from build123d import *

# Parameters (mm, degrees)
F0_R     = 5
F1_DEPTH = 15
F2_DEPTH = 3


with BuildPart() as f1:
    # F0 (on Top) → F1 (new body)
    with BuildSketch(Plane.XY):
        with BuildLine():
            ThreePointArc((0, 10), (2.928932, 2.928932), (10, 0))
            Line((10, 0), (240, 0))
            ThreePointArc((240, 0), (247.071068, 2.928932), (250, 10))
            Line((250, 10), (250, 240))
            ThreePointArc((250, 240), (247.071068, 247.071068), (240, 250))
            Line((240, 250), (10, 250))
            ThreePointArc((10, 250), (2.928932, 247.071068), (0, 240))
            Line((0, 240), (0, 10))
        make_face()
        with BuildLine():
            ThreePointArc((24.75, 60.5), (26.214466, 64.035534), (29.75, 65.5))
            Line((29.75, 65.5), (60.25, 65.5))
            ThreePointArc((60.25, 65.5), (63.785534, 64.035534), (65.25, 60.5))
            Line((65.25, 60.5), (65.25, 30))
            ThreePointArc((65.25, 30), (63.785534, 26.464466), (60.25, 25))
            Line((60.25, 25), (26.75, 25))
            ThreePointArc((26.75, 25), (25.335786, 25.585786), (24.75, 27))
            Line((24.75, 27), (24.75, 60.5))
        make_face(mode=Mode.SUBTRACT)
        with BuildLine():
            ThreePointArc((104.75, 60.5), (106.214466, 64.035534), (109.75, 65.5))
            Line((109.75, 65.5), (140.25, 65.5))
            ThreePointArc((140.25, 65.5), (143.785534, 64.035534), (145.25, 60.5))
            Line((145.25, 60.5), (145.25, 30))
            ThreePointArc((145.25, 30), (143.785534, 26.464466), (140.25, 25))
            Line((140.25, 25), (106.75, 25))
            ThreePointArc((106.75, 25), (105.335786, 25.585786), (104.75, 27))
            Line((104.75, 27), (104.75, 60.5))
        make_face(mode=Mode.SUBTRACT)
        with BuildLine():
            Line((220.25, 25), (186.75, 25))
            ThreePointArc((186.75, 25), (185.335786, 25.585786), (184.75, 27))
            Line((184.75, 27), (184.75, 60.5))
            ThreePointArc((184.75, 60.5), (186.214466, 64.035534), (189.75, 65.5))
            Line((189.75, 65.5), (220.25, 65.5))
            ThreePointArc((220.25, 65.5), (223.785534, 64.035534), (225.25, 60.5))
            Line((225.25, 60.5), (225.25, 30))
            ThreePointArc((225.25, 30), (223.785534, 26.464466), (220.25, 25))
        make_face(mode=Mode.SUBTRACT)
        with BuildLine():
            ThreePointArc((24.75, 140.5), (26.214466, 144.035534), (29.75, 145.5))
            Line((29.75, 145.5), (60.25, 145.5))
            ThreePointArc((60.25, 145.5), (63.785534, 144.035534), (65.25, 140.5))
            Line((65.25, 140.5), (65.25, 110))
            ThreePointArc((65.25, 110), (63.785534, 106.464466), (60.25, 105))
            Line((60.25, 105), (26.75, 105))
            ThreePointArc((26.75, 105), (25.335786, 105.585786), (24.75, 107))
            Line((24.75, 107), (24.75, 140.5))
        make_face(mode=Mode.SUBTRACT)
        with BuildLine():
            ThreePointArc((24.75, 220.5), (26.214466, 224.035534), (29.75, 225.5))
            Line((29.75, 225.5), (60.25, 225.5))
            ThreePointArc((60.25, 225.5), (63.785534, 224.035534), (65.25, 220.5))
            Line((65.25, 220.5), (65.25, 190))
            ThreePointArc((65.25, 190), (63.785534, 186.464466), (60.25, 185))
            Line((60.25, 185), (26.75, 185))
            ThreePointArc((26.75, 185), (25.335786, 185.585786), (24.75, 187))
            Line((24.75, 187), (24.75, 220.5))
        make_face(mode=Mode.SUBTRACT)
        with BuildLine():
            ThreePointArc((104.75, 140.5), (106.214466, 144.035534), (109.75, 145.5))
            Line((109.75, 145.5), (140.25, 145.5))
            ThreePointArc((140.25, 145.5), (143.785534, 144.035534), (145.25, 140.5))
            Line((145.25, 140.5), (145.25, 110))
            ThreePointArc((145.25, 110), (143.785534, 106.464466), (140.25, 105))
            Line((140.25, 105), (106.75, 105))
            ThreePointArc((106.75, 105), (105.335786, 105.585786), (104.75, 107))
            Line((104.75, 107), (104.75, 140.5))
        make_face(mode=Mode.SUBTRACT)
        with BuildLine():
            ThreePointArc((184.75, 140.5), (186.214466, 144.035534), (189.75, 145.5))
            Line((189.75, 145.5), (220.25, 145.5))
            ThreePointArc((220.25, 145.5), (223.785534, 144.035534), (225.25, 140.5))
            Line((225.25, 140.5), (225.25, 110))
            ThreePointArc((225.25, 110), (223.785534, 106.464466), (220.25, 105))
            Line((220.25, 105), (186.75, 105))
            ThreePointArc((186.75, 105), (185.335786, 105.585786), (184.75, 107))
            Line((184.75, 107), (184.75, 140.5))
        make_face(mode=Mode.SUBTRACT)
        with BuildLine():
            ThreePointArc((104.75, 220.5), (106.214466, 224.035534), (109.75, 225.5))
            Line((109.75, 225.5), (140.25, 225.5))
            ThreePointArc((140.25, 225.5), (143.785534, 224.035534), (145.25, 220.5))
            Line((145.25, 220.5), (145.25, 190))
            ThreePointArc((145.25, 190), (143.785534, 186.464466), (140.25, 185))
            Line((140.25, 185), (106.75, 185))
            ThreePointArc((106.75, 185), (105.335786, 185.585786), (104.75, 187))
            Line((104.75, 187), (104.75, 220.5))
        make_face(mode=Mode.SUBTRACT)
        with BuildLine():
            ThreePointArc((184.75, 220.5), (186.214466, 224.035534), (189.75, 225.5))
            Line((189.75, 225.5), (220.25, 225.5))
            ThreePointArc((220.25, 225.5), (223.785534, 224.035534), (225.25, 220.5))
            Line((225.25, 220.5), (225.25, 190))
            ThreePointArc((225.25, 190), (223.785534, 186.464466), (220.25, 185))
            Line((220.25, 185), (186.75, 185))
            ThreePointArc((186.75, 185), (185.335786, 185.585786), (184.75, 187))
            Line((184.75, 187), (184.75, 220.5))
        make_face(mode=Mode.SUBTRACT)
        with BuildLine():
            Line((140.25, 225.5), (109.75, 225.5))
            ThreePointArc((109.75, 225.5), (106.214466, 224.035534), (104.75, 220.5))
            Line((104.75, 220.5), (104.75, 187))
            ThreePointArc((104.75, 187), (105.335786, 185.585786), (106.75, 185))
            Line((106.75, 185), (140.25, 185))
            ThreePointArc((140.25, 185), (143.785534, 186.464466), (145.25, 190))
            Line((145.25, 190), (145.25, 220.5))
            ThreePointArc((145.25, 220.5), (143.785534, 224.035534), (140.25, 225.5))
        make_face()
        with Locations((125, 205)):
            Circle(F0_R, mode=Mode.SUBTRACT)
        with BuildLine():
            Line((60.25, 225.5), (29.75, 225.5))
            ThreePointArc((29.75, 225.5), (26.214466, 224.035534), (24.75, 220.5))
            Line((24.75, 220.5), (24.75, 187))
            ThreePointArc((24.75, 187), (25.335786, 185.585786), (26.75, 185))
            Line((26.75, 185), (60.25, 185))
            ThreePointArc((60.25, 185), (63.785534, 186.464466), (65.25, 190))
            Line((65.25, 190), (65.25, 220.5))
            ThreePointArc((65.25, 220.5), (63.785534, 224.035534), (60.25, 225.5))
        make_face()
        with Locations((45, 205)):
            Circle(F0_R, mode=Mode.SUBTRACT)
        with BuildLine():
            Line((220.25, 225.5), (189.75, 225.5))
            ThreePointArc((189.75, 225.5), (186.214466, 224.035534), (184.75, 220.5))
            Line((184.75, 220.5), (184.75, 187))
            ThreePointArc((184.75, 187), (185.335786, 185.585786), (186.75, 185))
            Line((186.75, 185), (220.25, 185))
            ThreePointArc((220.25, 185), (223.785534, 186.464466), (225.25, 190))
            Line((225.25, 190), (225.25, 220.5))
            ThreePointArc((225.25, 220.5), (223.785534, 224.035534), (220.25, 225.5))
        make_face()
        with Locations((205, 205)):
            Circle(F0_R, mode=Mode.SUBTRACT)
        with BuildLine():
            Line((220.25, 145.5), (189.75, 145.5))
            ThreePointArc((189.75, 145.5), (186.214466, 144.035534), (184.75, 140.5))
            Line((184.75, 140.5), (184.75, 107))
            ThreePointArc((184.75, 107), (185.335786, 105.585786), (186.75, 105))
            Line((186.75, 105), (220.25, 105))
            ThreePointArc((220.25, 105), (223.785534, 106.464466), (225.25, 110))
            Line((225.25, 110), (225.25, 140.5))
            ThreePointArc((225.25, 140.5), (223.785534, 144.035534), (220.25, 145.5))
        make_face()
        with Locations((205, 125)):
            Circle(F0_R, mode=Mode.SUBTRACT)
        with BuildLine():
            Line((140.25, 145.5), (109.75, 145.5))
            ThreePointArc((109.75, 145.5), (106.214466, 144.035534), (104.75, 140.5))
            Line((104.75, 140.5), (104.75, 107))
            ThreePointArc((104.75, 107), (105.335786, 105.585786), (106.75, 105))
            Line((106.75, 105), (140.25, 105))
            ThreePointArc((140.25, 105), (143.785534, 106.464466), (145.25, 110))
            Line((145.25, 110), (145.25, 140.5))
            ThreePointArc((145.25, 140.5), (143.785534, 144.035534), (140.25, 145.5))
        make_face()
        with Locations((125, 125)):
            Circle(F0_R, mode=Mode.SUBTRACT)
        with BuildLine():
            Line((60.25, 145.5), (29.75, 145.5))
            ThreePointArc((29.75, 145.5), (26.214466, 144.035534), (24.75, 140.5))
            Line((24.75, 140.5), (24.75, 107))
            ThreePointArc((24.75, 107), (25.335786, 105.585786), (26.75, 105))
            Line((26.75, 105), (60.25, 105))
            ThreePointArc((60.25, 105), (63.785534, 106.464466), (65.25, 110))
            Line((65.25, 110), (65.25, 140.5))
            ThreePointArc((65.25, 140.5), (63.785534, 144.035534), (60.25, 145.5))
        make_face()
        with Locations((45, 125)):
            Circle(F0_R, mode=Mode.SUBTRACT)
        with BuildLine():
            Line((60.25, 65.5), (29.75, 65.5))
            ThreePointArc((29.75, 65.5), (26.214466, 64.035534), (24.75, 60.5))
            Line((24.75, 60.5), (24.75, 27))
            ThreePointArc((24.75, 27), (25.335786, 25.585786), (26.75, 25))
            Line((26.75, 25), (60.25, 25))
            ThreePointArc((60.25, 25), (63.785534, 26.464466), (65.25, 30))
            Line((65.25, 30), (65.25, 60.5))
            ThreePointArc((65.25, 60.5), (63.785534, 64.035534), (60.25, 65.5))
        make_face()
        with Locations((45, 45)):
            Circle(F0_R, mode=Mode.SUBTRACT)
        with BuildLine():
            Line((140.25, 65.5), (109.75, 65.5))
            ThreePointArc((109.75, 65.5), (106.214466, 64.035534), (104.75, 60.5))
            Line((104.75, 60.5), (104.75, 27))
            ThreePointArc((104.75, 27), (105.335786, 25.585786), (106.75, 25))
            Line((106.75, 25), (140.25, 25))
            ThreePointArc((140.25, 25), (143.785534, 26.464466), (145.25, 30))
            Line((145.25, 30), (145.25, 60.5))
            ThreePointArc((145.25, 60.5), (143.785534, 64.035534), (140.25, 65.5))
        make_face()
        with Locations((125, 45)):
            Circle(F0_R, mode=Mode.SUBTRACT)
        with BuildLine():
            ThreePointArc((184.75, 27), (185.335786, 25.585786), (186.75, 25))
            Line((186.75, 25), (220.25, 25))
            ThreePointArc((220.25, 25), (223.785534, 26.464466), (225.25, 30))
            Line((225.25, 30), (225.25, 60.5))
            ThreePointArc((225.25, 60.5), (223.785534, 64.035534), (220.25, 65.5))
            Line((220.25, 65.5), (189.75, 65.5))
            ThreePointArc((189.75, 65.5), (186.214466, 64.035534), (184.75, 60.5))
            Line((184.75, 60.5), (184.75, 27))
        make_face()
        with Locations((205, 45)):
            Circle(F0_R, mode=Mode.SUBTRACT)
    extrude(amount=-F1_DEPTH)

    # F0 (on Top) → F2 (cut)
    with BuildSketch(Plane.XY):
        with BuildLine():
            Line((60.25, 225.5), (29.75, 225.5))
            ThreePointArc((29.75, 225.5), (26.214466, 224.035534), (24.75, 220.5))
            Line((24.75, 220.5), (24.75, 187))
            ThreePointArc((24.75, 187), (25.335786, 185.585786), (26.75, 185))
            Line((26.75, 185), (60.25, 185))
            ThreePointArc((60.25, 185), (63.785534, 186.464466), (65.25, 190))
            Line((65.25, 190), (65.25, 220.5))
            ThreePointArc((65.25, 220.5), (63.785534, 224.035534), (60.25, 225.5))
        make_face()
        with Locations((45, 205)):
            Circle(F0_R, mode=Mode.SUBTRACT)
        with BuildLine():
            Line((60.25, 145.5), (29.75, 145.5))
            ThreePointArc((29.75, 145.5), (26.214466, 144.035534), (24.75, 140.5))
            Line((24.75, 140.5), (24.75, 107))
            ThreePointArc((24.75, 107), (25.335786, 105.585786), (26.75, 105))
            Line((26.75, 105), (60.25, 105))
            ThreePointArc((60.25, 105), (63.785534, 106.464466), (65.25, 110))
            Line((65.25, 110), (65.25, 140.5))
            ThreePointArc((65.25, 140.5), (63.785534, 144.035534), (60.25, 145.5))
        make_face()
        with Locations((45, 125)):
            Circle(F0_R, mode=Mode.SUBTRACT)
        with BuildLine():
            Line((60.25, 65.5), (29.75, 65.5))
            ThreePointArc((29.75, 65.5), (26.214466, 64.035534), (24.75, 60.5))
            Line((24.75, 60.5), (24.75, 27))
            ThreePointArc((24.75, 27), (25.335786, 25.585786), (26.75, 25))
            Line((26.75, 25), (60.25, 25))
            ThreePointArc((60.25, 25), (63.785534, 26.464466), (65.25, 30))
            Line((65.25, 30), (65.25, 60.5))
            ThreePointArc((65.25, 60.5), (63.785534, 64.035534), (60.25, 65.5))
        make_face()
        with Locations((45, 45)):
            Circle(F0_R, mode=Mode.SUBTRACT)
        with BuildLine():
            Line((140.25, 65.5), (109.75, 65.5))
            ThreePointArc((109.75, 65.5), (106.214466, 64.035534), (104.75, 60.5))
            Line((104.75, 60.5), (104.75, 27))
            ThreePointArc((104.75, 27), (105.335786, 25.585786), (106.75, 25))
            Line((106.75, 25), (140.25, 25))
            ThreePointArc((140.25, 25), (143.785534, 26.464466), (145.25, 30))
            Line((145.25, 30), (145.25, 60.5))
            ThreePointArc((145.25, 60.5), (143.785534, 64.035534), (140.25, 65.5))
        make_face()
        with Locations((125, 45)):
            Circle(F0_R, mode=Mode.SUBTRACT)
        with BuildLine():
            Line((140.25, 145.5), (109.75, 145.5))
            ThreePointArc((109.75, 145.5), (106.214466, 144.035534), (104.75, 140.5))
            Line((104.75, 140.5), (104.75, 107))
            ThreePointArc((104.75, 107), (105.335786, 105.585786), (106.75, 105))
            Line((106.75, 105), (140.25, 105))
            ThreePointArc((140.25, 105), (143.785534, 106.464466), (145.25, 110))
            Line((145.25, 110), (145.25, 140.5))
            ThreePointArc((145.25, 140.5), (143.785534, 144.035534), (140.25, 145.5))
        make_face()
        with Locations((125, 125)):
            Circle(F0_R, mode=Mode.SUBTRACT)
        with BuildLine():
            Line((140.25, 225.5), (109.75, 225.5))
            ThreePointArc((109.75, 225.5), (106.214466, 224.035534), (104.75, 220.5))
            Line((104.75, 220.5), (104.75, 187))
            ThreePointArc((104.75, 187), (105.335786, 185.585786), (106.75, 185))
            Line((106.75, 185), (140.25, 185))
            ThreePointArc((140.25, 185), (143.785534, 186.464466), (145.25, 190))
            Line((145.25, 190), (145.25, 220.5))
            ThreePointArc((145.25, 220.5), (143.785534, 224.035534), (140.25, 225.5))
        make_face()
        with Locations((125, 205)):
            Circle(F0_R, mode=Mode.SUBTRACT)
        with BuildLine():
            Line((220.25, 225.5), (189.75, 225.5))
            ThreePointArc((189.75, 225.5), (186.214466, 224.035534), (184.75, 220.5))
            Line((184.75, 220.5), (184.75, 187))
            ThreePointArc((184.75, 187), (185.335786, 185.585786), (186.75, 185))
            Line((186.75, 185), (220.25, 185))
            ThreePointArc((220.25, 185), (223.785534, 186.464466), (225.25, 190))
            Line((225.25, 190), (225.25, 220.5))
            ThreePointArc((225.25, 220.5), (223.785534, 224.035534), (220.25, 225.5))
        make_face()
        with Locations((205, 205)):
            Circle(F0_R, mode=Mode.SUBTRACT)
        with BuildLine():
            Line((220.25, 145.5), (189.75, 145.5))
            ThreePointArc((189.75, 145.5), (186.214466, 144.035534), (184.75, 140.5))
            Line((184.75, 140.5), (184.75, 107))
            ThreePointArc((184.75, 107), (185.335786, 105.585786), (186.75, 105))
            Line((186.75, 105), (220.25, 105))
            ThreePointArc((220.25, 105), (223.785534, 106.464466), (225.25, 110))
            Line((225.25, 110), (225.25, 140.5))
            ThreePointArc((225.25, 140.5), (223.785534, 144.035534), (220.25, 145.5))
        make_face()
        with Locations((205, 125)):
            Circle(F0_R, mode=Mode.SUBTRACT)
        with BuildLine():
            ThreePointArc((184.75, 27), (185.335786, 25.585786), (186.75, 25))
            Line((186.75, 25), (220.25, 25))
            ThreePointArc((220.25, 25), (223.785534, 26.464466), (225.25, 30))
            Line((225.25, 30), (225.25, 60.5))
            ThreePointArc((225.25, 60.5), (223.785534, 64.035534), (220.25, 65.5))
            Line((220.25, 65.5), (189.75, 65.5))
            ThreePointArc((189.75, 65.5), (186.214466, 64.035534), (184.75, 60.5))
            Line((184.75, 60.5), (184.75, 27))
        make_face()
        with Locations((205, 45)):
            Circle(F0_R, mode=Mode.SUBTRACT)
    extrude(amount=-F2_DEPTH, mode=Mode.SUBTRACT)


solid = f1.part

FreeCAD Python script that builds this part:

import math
import FreeCAD as App
import Part
import Sketcher
Q = App.Units.Quantity

doc = App.newDocument("Part")
body = doc.addObject("PartDesign::Body", "Body")

sketch1 = doc.addObject("Sketcher::SketchObject", "Sketch")
body.addObject(sketch1)
sketch1.AttachmentSupport = (doc.XY_Plane, [""])
sketch1.MapMode = "FlatFace"
sketch1.addGeometry([
    Part.ArcOfCircle(Part.Circle(App.Vector(10, 10, 0), App.Vector(0, 0, 1), 10), math.radians(180), math.radians(270)),
    Part.LineSegment(App.Vector(10, 0, 0), App.Vector(240, 0, 0)),
    Part.ArcOfCircle(Part.Circle(App.Vector(240, 10, 0), App.Vector(0, 0, 1), 10), math.radians(-90), math.radians(0)),
    Part.LineSegment(App.Vector(250, 10, 0), App.Vector(250, 240, 0)),
    Part.ArcOfCircle(Part.Circle(App.Vector(240, 240, 0), App.Vector(0, 0, 1), 10), math.radians(0), math.radians(90)),
    Part.LineSegment(App.Vector(240, 250, 0), App.Vector(10, 250, 0)),
    Part.ArcOfCircle(Part.Circle(App.Vector(10, 240, 0), App.Vector(0, 0, 1), 10), math.radians(90), math.radians(180)),
    Part.LineSegment(App.Vector(0, 240, 0), App.Vector(0, 10, 0)),
    Part.Circle(App.Vector(45, 45, 0), App.Vector(0, 0, 1), 5),
    Part.Circle(App.Vector(125, 45, 0), App.Vector(0, 0, 1), 5),
    Part.Circle(App.Vector(205, 45, 0), App.Vector(0, 0, 1), 5),
    Part.Circle(App.Vector(45, 125, 0), App.Vector(0, 0, 1), 5),
    Part.Circle(App.Vector(45, 205, 0), App.Vector(0, 0, 1), 5),
    Part.Circle(App.Vector(125, 125, 0), App.Vector(0, 0, 1), 5),
    Part.Circle(App.Vector(205, 125, 0), App.Vector(0, 0, 1), 5),
    Part.Circle(App.Vector(125, 205, 0), App.Vector(0, 0, 1), 5),
    Part.Circle(App.Vector(205, 205, 0), App.Vector(0, 0, 1), 5),
], False)
sketch1.addConstraint([
    Sketcher.Constraint("Tangent", 0, 2, 1, 1),
    Sketcher.Constraint("Tangent", 1, 2, 2, 1),
    Sketcher.Constraint("Tangent", 2, 2, 3, 1),
    Sketcher.Constraint("Tangent", 3, 2, 4, 1),
    Sketcher.Constraint("Tangent", 4, 2, 5, 1),
    Sketcher.Constraint("Tangent", 5, 2, 6, 1),
    Sketcher.Constraint("Tangent", 6, 2, 7, 1),
    Sketcher.Constraint("Tangent", 7, 2, 0, 1),
    Sketcher.Constraint("Horizontal", 1),
    Sketcher.Constraint("Vertical", 3),
    Sketcher.Constraint("Horizontal", 5),
    Sketcher.Constraint("Vertical", 7),
    Sketcher.Constraint("Equal", 0, 2),
    Sketcher.Constraint("Equal", 2, 4),
    Sketcher.Constraint("Equal", 4, 6),
    Sketcher.Constraint("Equal", 8, 9),
    Sketcher.Constraint("Equal", 9, 10),
    Sketcher.Constraint("Equal", 10, 11),
    Sketcher.Constraint("Equal", 11, 12),
    Sketcher.Constraint("Equal", 12, 13),
    Sketcher.Constraint("Equal", 13, 14),
    Sketcher.Constraint("Equal", 14, 15),
    Sketcher.Constraint("Equal", 15, 16),
    Sketcher.Constraint("PointOnObject", 0, 2, -1),
    Sketcher.Constraint("PointOnObject", 6, 2, -2),
    Sketcher.Constraint("Horizontal", 8, 3, 9, 3),
    Sketcher.Constraint("Horizontal", 9, 3, 10, 3),
    Sketcher.Constraint("Horizontal", 11, 3, 13, 3),
    Sketcher.Constraint("Horizontal", 13, 3, 14, 3),
    Sketcher.Constraint("Horizontal", 12, 3, 15, 3),
    Sketcher.Constraint("Horizontal", 15, 3, 16, 3),
    Sketcher.Constraint("Vertical", 8, 3, 11, 3),
    Sketcher.Constraint("Vertical", 11, 3, 12, 3),
    Sketcher.Constraint("Vertical", 9, 3, 13, 3),
    Sketcher.Constraint("Vertical", 10, 3, 14, 3),
    Sketcher.Constraint("Vertical", 13, 3, 15, 3),
    Sketcher.Constraint("Vertical", 14, 3, 16, 3),
    Sketcher.Constraint("Equal", 5, 3),
    Sketcher.Constraint("Diameter", 8, Q("10 mm")),
    Sketcher.Constraint("Radius", 0, Q("9.999999 mm")),
    Sketcher.Constraint("DistanceX", 1, 1, 1, 2, Q("230 mm")),
    Sketcher.Constraint("DistanceX", -1, 1, 8, 3, Q("45 mm")),
    Sketcher.Constraint("DistanceY", -1, 1, 8, 3, Q("45 mm")),
    Sketcher.Constraint("DistanceX", -1, 1, 9, 3, Q("125 mm")),
    Sketcher.Constraint("DistanceX", -1, 1, 10, 3, Q("205 mm")),
    Sketcher.Constraint("DistanceY", -1, 1, 11, 3, Q("125 mm")),
    Sketcher.Constraint("DistanceY", -1, 1, 12, 3, Q("205 mm")),
])
pad1 = doc.addObject("PartDesign::Pad", "Pad")
body.addObject(pad1)
pad1.Profile = sketch1
pad1.Length = 15
pad1.Reversed = True

sketch2 = doc.addObject("Sketcher::SketchObject", "Sketch001")
body.addObject(sketch2)
sketch2.AttachmentSupport = (doc.XY_Plane, [""])
sketch2.MapMode = "FlatFace"
sketch2.addGeometry([
    Part.LineSegment(App.Vector(60.2, 225.5, 0), App.Vector(29.8, 225.5, 0)),
    Part.ArcOfCircle(Part.Circle(App.Vector(29.7, 220.5, 0), App.Vector(0, 0, 1), 5), math.radians(90), math.radians(180)),
    Part.LineSegment(App.Vector(24.8, 220.5, 0), App.Vector(24.8, 187, 0)),
    Part.ArcOfCircle(Part.Circle(App.Vector(26.7, 187, 0), App.Vector(0, 0, 1), 2), math.radians(180), math.radians(270)),
    Part.LineSegment(App.Vector(26.8, 185, 0), App.Vector(60.2, 185, 0)),
    Part.ArcOfCircle(Part.Circle(App.Vector(60.3, 190, 0), App.Vector(0, 0, 1), 5), math.radians(-90), math.radians(0)),
    Part.LineSegment(App.Vector(65.2, 190, 0), App.Vector(65.2, 220.5, 0)),
    Part.ArcOfCircle(Part.Circle(App.Vector(60.3, 220.5, 0), App.Vector(0, 0, 1), 5), math.radians(0), math.radians(90)),
    Part.Circle(App.Vector(45, 205, 0), App.Vector(0, 0, 1), 5),
    Part.LineSegment(App.Vector(60.2, 145.5, 0), App.Vector(29.8, 145.5, 0)),
    Part.ArcOfCircle(Part.Circle(App.Vector(29.7, 140.5, 0), App.Vector(0, 0, 1), 5), math.radians(90), math.radians(180)),
    Part.LineSegment(App.Vector(24.8, 140.5, 0), App.Vector(24.8, 107, 0)),
    Part.ArcOfCircle(Part.Circle(App.Vector(26.7, 107, 0), App.Vector(0, 0, 1), 2), math.radians(180), math.radians(270)),
    Part.LineSegment(App.Vector(26.8, 105, 0), App.Vector(60.2, 105, 0)),
    Part.ArcOfCircle(Part.Circle(App.Vector(60.3, 110, 0), App.Vector(0, 0, 1), 5), math.radians(-90), math.radians(0)),
    Part.LineSegment(App.Vector(65.2, 110, 0), App.Vector(65.2, 140.5, 0)),
    Part.ArcOfCircle(Part.Circle(App.Vector(60.3, 140.5, 0), App.Vector(0, 0, 1), 5), math.radians(0), math.radians(90)),
    Part.Circle(App.Vector(45, 125, 0), App.Vector(0, 0, 1), 5),
    Part.LineSegment(App.Vector(60.2, 65.5, 0), App.Vector(29.8, 65.5, 0)),
    Part.ArcOfCircle(Part.Circle(App.Vector(29.7, 60.5, 0), App.Vector(0, 0, 1), 5), math.radians(90), math.radians(180)),
    Part.LineSegment(App.Vector(24.8, 60.5, 0), App.Vector(24.8, 27, 0)),
    Part.ArcOfCircle(Part.Circle(App.Vector(26.7, 27, 0), App.Vector(0, 0, 1), 2), math.radians(180), math.radians(270)),
    Part.LineSegment(App.Vector(26.8, 25, 0), App.Vector(60.2, 25, 0)),
    Part.ArcOfCircle(Part.Circle(App.Vector(60.3, 30, 0), App.Vector(0, 0, 1), 5), math.radians(-90), math.radians(0)),
    Part.LineSegment(App.Vector(65.2, 30, 0), App.Vector(65.2, 60.5, 0)),
    Part.ArcOfCircle(Part.Circle(App.Vector(60.3, 60.5, 0), App.Vector(0, 0, 1), 5), math.radians(0), math.radians(90)),
    Part.Circle(App.Vector(45, 45, 0), App.Vector(0, 0, 1), 5),
    Part.LineSegment(App.Vector(140.2, 65.5, 0), App.Vector(109.8, 65.5, 0)),
    Part.ArcOfCircle(Part.Circle(App.Vector(109.7, 60.5, 0), App.Vector(0, 0, 1), 5), math.radians(90), math.radians(180)),
    Part.LineSegment(App.Vector(104.8, 60.5, 0), App.Vector(104.8, 27, 0)),
    Part.ArcOfCircle(Part.Circle(App.Vector(106.7, 27, 0), App.Vector(0, 0, 1), 2), math.radians(180), math.radians(270)),
    Part.LineSegment(App.Vector(106.8, 25, 0), App.Vector(140.2, 25, 0)),
    Part.ArcOfCircle(Part.Circle(App.Vector(140.3, 30, 0), App.Vector(0, 0, 1), 5), math.radians(-90), math.radians(0)),
    Part.LineSegment(App.Vector(145.2, 30, 0), App.Vector(145.2, 60.5, 0)),
    Part.ArcOfCircle(Part.Circle(App.Vector(140.3, 60.5, 0), App.Vector(0, 0, 1), 5), math.radians(0), math.radians(90)),
    Part.Circle(App.Vector(125, 45, 0), App.Vector(0, 0, 1), 5),
    Part.LineSegment(App.Vector(140.2, 145.5, 0), App.Vector(109.8, 145.5, 0)),
    Part.ArcOfCircle(Part.Circle(App.Vector(109.7, 140.5, 0), App.Vector(0, 0, 1), 5), math.radians(90), math.radians(180)),
    Part.LineSegment(App.Vector(104.8, 140.5, 0), App.Vector(104.8, 107, 0)),
    Part.ArcOfCircle(Part.Circle(App.Vector(106.7, 107, 0), App.Vector(0, 0, 1), 2), math.radians(180), math.radians(270)),
    Part.LineSegment(App.Vector(106.8, 105, 0), App.Vector(140.2, 105, 0)),
    Part.ArcOfCircle(Part.Circle(App.Vector(140.3, 110, 0), App.Vector(0, 0, 1), 5), math.radians(-90), math.radians(0)),
    Part.LineSegment(App.Vector(145.2, 110, 0), App.Vector(145.2, 140.5, 0)),
    Part.ArcOfCircle(Part.Circle(App.Vector(140.3, 140.5, 0), App.Vector(0, 0, 1), 5), math.radians(0), math.radians(90)),
    Part.Circle(App.Vector(125, 125, 0), App.Vector(0, 0, 1), 5),
    Part.LineSegment(App.Vector(140.2, 225.5, 0), App.Vector(109.8, 225.5, 0)),
    Part.ArcOfCircle(Part.Circle(App.Vector(109.7, 220.5, 0), App.Vector(0, 0, 1), 5), math.radians(90), math.radians(180)),
    Part.LineSegment(App.Vector(104.8, 220.5, 0), App.Vector(104.8, 187, 0)),
    Part.ArcOfCircle(Part.Circle(App.Vector(106.7, 187, 0), App.Vector(0, 0, 1), 2), math.radians(180), math.radians(270)),
    Part.LineSegment(App.Vector(106.8, 185, 0), App.Vector(140.2, 185, 0)),
    Part.ArcOfCircle(Part.Circle(App.Vector(140.3, 190, 0), App.Vector(0, 0, 1), 5), math.radians(-90), math.radians(0)),
    Part.LineSegment(App.Vector(145.2, 190, 0), App.Vector(145.2, 220.5, 0)),
    Part.ArcOfCircle(Part.Circle(App.Vector(140.3, 220.5, 0), App.Vector(0, 0, 1), 5), math.radians(0), math.radians(90)),
    Part.Circle(App.Vector(125, 205, 0), App.Vector(0, 0, 1), 5),
    Part.LineSegment(App.Vector(220.2, 225.5, 0), App.Vector(189.8, 225.5, 0)),
    Part.ArcOfCircle(Part.Circle(App.Vector(189.7, 220.5, 0), App.Vector(0, 0, 1), 5), math.radians(90), math.radians(180)),
    Part.LineSegment(App.Vector(184.8, 220.5, 0), App.Vector(184.8, 187, 0)),
    Part.ArcOfCircle(Part.Circle(App.Vector(186.7, 187, 0), App.Vector(0, 0, 1), 2), math.radians(180), math.radians(270)),
    Part.LineSegment(App.Vector(186.8, 185, 0), App.Vector(220.2, 185, 0)),
    Part.ArcOfCircle(Part.Circle(App.Vector(220.3, 190, 0), App.Vector(0, 0, 1), 5), math.radians(-90), math.radians(0)),
    Part.LineSegment(App.Vector(225.2, 190, 0), App.Vector(225.2, 220.5, 0)),
    Part.ArcOfCircle(Part.Circle(App.Vector(220.3, 220.5, 0), App.Vector(0, 0, 1), 5), math.radians(0), math.radians(90)),
    Part.Circle(App.Vector(205, 205, 0), App.Vector(0, 0, 1), 5),
    Part.LineSegment(App.Vector(220.2, 145.5, 0), App.Vector(189.8, 145.5, 0)),
    Part.ArcOfCircle(Part.Circle(App.Vector(189.7, 140.5, 0), App.Vector(0, 0, 1), 5), math.radians(90), math.radians(180)),
    Part.LineSegment(App.Vector(184.8, 140.5, 0), App.Vector(184.8, 107, 0)),
    Part.ArcOfCircle(Part.Circle(App.Vector(186.7, 107, 0), App.Vector(0, 0, 1), 2), math.radians(180), math.radians(270)),
    Part.LineSegment(App.Vector(186.8, 105, 0), App.Vector(220.2, 105, 0)),
    Part.ArcOfCircle(Part.Circle(App.Vector(220.3, 110, 0), App.Vector(0, 0, 1), 5), math.radians(-90), math.radians(0)),
    Part.LineSegment(App.Vector(225.2, 110, 0), App.Vector(225.2, 140.5, 0)),
    Part.ArcOfCircle(Part.Circle(App.Vector(220.3, 140.5, 0), App.Vector(0, 0, 1), 5), math.radians(0), math.radians(90)),
    Part.Circle(App.Vector(205, 125, 0), App.Vector(0, 0, 1), 5),
    Part.ArcOfCircle(Part.Circle(App.Vector(186.7, 27, 0), App.Vector(0, 0, 1), 2), math.radians(180), math.radians(270)),
    Part.LineSegment(App.Vector(186.8, 25, 0), App.Vector(220.2, 25, 0)),
    Part.ArcOfCircle(Part.Circle(App.Vector(220.3, 30, 0), App.Vector(0, 0, 1), 5), math.radians(-90), math.radians(0)),
    Part.LineSegment(App.Vector(225.2, 30, 0), App.Vector(225.2, 60.5, 0)),
    Part.ArcOfCircle(Part.Circle(App.Vector(220.3, 60.5, 0), App.Vector(0, 0, 1), 5), math.radians(0), math.radians(90)),
    Part.LineSegment(App.Vector(220.2, 65.5, 0), App.Vector(189.8, 65.5, 0)),
    Part.ArcOfCircle(Part.Circle(App.Vector(189.7, 60.5, 0), App.Vector(0, 0, 1), 5), math.radians(90), math.radians(180)),
    Part.LineSegment(App.Vector(184.8, 60.5, 0), App.Vector(184.8, 27, 0)),
    Part.Circle(App.Vector(205, 45, 0), App.Vector(0, 0, 1), 5),
], False)
sketch2.addConstraint([
    Sketcher.Constraint("Tangent", 0, 2, 1, 1),
    Sketcher.Constraint("Tangent", 1, 2, 2, 1),
    Sketcher.Constraint("Tangent", 2, 2, 3, 1),
    Sketcher.Constraint("Tangent", 3, 2, 4, 1),
    Sketcher.Constraint("Tangent", 4, 2, 5, 1),
    Sketcher.Constraint("Tangent", 5, 2, 6, 1),
    Sketcher.Constraint("Tangent", 6, 2, 7, 1),
    Sketcher.Constraint("Tangent", 7, 2, 0, 1),
    Sketcher.Constraint("Tangent", 9, 2, 10, 1),
    Sketcher.Constraint("Tangent", 10, 2, 11, 1),
    Sketcher.Constraint("Tangent", 11, 2, 12, 1),
    Sketcher.Constraint("Tangent", 12, 2, 13, 1),
    Sketcher.Constraint("Tangent", 13, 2, 14, 1),
    Sketcher.Constraint("Tangent", 14, 2, 15, 1),
    Sketcher.Constraint("Tangent", 15, 2, 16, 1),
    Sketcher.Constraint("Tangent", 16, 2, 9, 1),
    Sketcher.Constraint("Tangent", 18, 2, 19, 1),
    Sketcher.Constraint("Tangent", 19, 2, 20, 1),
    Sketcher.Constraint("Tangent", 20, 2, 21, 1),
    Sketcher.Constraint("Tangent", 21, 2, 22, 1),
    Sketcher.Constraint("Tangent", 22, 2, 23, 1),
    Sketcher.Constraint("Tangent", 23, 2, 24, 1),
    Sketcher.Constraint("Tangent", 24, 2, 25, 1),
    Sketcher.Constraint("Tangent", 25, 2, 18, 1),
    Sketcher.Constraint("Tangent", 27, 2, 28, 1),
    Sketcher.Constraint("Tangent", 28, 2, 29, 1),
    Sketcher.Constraint("Tangent", 29, 2, 30, 1),
    Sketcher.Constraint("Tangent", 30, 2, 31, 1),
    Sketcher.Constraint("Tangent", 31, 2, 32, 1),
    Sketcher.Constraint("Tangent", 32, 2, 33, 1),
    Sketcher.Constraint("Tangent", 33, 2, 34, 1),
    Sketcher.Constraint("Tangent", 34, 2, 27, 1),
    Sketcher.Constraint("Tangent", 36, 2, 37, 1),
    Sketcher.Constraint("Tangent", 37, 2, 38, 1),
    Sketcher.Constraint("Tangent", 38, 2, 39, 1),
    Sketcher.Constraint("Tangent", 39, 2, 40, 1),
    Sketcher.Constraint("Tangent", 40, 2, 41, 1),
    Sketcher.Constraint("Tangent", 41, 2, 42, 1),
    Sketcher.Constraint("Tangent", 42, 2, 43, 1),
    Sketcher.Constraint("Tangent", 43, 2, 36, 1),
    Sketcher.Constraint("Tangent", 45, 2, 46, 1),
    Sketcher.Constraint("Tangent", 46, 2, 47, 1),
    Sketcher.Constraint("Tangent", 47, 2, 48, 1),
    Sketcher.Constraint("Tangent", 48, 2, 49, 1),
    Sketcher.Constraint("Tangent", 49, 2, 50, 1),
    Sketcher.Constraint("Tangent", 50, 2, 51, 1),
    Sketcher.Constraint("Tangent", 51, 2, 52, 1),
    Sketcher.Constraint("Tangent", 52, 2, 45, 1),
    Sketcher.Constraint("Tangent", 54, 2, 55, 1),
    Sketcher.Constraint("Tangent", 55, 2, 56, 1),
    Sketcher.Constraint("Tangent", 56, 2, 57, 1),
    Sketcher.Constraint("Tangent", 57, 2, 58, 1),
    Sketcher.Constraint("Tangent", 58, 2, 59, 1),
    Sketcher.Constraint("Tangent", 59, 2, 60, 1),
    Sketcher.Constraint("Tangent", 60, 2, 61, 1),
    Sketcher.Constraint("Tangent", 61, 2, 54, 1),
    Sketcher.Constraint("Tangent", 63, 2, 64, 1),
    Sketcher.Constraint("Tangent", 64, 2, 65, 1),
    Sketcher.Constraint("Tangent", 65, 2, 66, 1),
    Sketcher.Constraint("Tangent", 66, 2, 67, 1),
    Sketcher.Constraint("Tangent", 67, 2, 68, 1),
    Sketcher.Constraint("Tangent", 68, 2, 69, 1),
    Sketcher.Constraint("Tangent", 69, 2, 70, 1),
    Sketcher.Constraint("Tangent", 70, 2, 63, 1),
    Sketcher.Constraint("Tangent", 72, 2, 73, 1),
    Sketcher.Constraint("Tangent", 73, 2, 74, 1),
    Sketcher.Constraint("Tangent", 74, 2, 75, 1),
    Sketcher.Constraint("Tangent", 75, 2, 76, 1),
    Sketcher.Constraint("Tangent", 76, 2, 77, 1),
    Sketcher.Constraint("Tangent", 77, 2, 78, 1),
    Sketcher.Constraint("Tangent", 78, 2, 79, 1),
    Sketcher.Constraint("Tangent", 79, 2, 72, 1),
    Sketcher.Constraint("Horizontal", 0),
    Sketcher.Constraint("Vertical", 2),
    Sketcher.Constraint("Horizontal", 4),
    Sketcher.Constraint("Vertical", 6),
    Sketcher.Constraint("Horizontal", 9),
    Sketcher.Constraint("Vertical", 11),
    Sketcher.Constraint("Horizontal", 13),
    Sketcher.Constraint("Vertical", 15),
    Sketcher.Constraint("Horizontal", 18),
    Sketcher.Constraint("Vertical", 20),
    Sketcher.Constraint("Horizontal", 22),
    Sketcher.Constraint("Vertical", 24),
    Sketcher.Constraint("Horizontal", 27),
    Sketcher.Constraint("Vertical", 29),
    Sketcher.Constraint("Horizontal", 31),
    Sketcher.Constraint("Vertical", 33),
    Sketcher.Constraint("Horizontal", 36),
    Sketcher.Constraint("Vertical", 38),
    Sketcher.Constraint("Horizontal", 40),
    Sketcher.Constraint("Vertical", 42),
    Sketcher.Constraint("Horizontal", 45),
    Sketcher.Constraint("Vertical", 47),
    Sketcher.Constraint("Horizontal", 49),
    Sketcher.Constraint("Vertical", 51),
    Sketcher.Constraint("Horizontal", 54),
    Sketcher.Constraint("Vertical", 56),
    Sketcher.Constraint("Horizontal", 58),
    Sketcher.Constraint("Vertical", 60),
    Sketcher.Constraint("Horizontal", 63),
    Sketcher.Constraint("Vertical", 65),
    Sketcher.Constraint("Horizontal", 67),
    Sketcher.Constraint("Vertical", 69),
    Sketcher.Constraint("Horizontal", 73),
    Sketcher.Constraint("Vertical", 75),
    Sketcher.Constraint("Horizontal", 77),
    Sketcher.Constraint("Vertical", 79),
    Sketcher.Constraint("Equal", 1, 5),
    Sketcher.Constraint("Equal", 5, 7),
    Sketcher.Constraint("Equal", 7, 8),
    Sketcher.Constraint("Equal", 8, 10),
    Sketcher.Constraint("Equal", 3, 12),
    Sketcher.Constraint("Equal", 10, 14),
    Sketcher.Constraint("Equal", 14, 16),
    Sketcher.Constraint("Equal", 16, 17),
    Sketcher.Constraint("Equal", 17, 19),
    Sketcher.Constraint("Equal", 12, 21),
    Sketcher.Constraint("Equal", 19, 23),
    Sketcher.Constraint("Equal", 23, 25),
    Sketcher.Constraint("Equal", 25, 26),
    Sketcher.Constraint("Equal", 26, 28),
    Sketcher.Constraint("Equal", 21, 30),
    Sketcher.Constraint("Equal", 28, 32),
    Sketcher.Constraint("Equal", 32, 34),
    Sketcher.Constraint("Equal", 34, 35),
    Sketcher.Constraint("Equal", 35, 37),
    Sketcher.Constraint("Equal", 30, 39),
    Sketcher.Constraint("Equal", 37, 41),
    Sketcher.Constraint("Equal", 41, 43),
    Sketcher.Constraint("Equal", 43, 44),
    Sketcher.Constraint("Equal", 44, 46),
    Sketcher.Constraint("Equal", 39, 48),
    Sketcher.Constraint("Equal", 46, 50),
    Sketcher.Constraint("Equal", 50, 52),
    Sketcher.Constraint("Equal", 52, 53),
    Sketcher.Constraint("Equal", 53, 55),
    Sketcher.Constraint("Equal", 48, 57),
    Sketcher.Constraint("Equal", 55, 59),
    Sketcher.Constraint("Equal", 59, 61),
    Sketcher.Constraint("Equal", 61, 62),
    Sketcher.Constraint("Equal", 62, 64),
    Sketcher.Constraint("Equal", 57, 66),
    Sketcher.Constraint("Equal", 64, 68),
    Sketcher.Constraint("Equal", 68, 70),
    Sketcher.Constraint("Equal", 70, 71),
    Sketcher.Constraint("Equal", 66, 72),
    Sketcher.Constraint("Equal", 71, 74),
    Sketcher.Constraint("Equal", 74, 76),
    Sketcher.Constraint("Equal", 76, 78),
    Sketcher.Constraint("Equal", 78, 80),
    Sketcher.Constraint("Horizontal", 25, 3, 28, 3),
    Sketcher.Constraint("Horizontal", 21, 3, 30, 3),
    Sketcher.Constraint("Horizontal", 26, 3, 35, 3),
    Sketcher.Constraint("Horizontal", 16, 3, 37, 3),
    Sketcher.Constraint("Horizontal", 12, 3, 39, 3),
    Sketcher.Constraint("Horizontal", 17, 3, 44, 3),
    Sketcher.Constraint("Horizontal", 7, 3, 46, 3),
    Sketcher.Constraint("Horizontal", 3, 3, 48, 3),
    Sketcher.Constraint("Horizontal", 8, 3, 53, 3),
    Sketcher.Constraint("Horizontal", 52, 3, 55, 3),
    Sketcher.Constraint("Horizontal", 48, 3, 57, 3),
    Sketcher.Constraint("Horizontal", 53, 3, 62, 3),
    Sketcher.Constraint("Horizontal", 43, 3, 64, 3),
    Sketcher.Constraint("Horizontal", 39, 3, 66, 3),
    Sketcher.Constraint("Horizontal", 44, 3, 71, 3),
    Sketcher.Constraint("Horizontal", 30, 3, 72, 3),
    Sketcher.Constraint("Horizontal", 34, 3, 76, 3),
    Sketcher.Constraint("Horizontal", 35, 3, 80, 3),
    Sketcher.Constraint("Vertical", 1, 3, 10, 3),
    Sketcher.Constraint("Vertical", 7, 3, 14, 3),
    Sketcher.Constraint("Vertical", 8, 3, 17, 3),
    Sketcher.Constraint("Vertical", 10, 3, 19, 3),
    Sketcher.Constraint("Vertical", 16, 3, 23, 3),
    Sketcher.Constraint("Vertical", 17, 3, 26, 3),
    Sketcher.Constraint("Vertical", 28, 3, 37, 3),
    Sketcher.Constraint("Vertical", 34, 3, 41, 3),
    Sketcher.Constraint("Vertical", 35, 3, 44, 3),
    Sketcher.Constraint("Vertical", 37, 3, 46, 3),
    Sketcher.Constraint("Vertical", 43, 3, 50, 3),
    Sketcher.Constraint("Vertical", 44, 3, 53, 3),
    Sketcher.Constraint("Vertical", 55, 3, 64, 3),
    Sketcher.Constraint("Vertical", 61, 3, 68, 3),
    Sketcher.Constraint("Vertical", 62, 3, 71, 3),
    Sketcher.Constraint("Vertical", 66, 3, 72, 3),
    Sketcher.Constraint("Vertical", 70, 3, 74, 3),
    Sketcher.Constraint("Vertical", 71, 3, 80, 3),
    Sketcher.Constraint("Equal", 18, 27),
    Sketcher.Constraint("Equal", 45, 54),
    Sketcher.Constraint("Equal", 73, 2),
    Sketcher.Constraint("Equal", 2, 11),
    Sketcher.Constraint("Equal", 11, 20),
    Sketcher.Constraint("Diameter", 8, Q("10 mm")),
    Sketcher.Constraint("Radius", 3, Q("1.999999 mm")),
    Sketcher.Constraint("DistanceX", 0, 2, 0, 1, Q("30.5 mm")),
    Sketcher.Constraint("DistanceY", -1, 1, 3, 3, Q("186.999999 mm")),
    Sketcher.Constraint("DistanceX", -1, 1, 8, 3, Q("45 mm")),
    Sketcher.Constraint("DistanceY", -1, 1, 8, 3, Q("205 mm")),
    Sketcher.Constraint("DistanceY", -1, 1, 12, 3, Q("106.999999 mm")),
    Sketcher.Constraint("DistanceY", -1, 1, 17, 3, Q("125 mm")),
    Sketcher.Constraint("DistanceY", -1, 1, 21, 3, Q("26.999999 mm")),
    Sketcher.Constraint("DistanceY", -1, 1, 26, 3, Q("45 mm")),
    Sketcher.Constraint("DistanceX", -1, 1, 35, 3, Q("125 mm")),
    Sketcher.Constraint("DistanceX", -1, 1, 62, 3, Q("205 mm")),
    Sketcher.Constraint("DistanceX", -1, 1, 1, 3, Q("29.75 mm")),
    Sketcher.Constraint("DistanceX", -1, 1, 28, 3, Q("109.75 mm")),
    Sketcher.Constraint("DistanceX", -1, 1, 55, 3, Q("189.75 mm")),
])
pocket1 = doc.addObject("PartDesign::Pocket", "Pocket")
body.addObject(pocket1)
pocket1.Profile = sketch2
pocket1.Length = 3

doc.recompute()
